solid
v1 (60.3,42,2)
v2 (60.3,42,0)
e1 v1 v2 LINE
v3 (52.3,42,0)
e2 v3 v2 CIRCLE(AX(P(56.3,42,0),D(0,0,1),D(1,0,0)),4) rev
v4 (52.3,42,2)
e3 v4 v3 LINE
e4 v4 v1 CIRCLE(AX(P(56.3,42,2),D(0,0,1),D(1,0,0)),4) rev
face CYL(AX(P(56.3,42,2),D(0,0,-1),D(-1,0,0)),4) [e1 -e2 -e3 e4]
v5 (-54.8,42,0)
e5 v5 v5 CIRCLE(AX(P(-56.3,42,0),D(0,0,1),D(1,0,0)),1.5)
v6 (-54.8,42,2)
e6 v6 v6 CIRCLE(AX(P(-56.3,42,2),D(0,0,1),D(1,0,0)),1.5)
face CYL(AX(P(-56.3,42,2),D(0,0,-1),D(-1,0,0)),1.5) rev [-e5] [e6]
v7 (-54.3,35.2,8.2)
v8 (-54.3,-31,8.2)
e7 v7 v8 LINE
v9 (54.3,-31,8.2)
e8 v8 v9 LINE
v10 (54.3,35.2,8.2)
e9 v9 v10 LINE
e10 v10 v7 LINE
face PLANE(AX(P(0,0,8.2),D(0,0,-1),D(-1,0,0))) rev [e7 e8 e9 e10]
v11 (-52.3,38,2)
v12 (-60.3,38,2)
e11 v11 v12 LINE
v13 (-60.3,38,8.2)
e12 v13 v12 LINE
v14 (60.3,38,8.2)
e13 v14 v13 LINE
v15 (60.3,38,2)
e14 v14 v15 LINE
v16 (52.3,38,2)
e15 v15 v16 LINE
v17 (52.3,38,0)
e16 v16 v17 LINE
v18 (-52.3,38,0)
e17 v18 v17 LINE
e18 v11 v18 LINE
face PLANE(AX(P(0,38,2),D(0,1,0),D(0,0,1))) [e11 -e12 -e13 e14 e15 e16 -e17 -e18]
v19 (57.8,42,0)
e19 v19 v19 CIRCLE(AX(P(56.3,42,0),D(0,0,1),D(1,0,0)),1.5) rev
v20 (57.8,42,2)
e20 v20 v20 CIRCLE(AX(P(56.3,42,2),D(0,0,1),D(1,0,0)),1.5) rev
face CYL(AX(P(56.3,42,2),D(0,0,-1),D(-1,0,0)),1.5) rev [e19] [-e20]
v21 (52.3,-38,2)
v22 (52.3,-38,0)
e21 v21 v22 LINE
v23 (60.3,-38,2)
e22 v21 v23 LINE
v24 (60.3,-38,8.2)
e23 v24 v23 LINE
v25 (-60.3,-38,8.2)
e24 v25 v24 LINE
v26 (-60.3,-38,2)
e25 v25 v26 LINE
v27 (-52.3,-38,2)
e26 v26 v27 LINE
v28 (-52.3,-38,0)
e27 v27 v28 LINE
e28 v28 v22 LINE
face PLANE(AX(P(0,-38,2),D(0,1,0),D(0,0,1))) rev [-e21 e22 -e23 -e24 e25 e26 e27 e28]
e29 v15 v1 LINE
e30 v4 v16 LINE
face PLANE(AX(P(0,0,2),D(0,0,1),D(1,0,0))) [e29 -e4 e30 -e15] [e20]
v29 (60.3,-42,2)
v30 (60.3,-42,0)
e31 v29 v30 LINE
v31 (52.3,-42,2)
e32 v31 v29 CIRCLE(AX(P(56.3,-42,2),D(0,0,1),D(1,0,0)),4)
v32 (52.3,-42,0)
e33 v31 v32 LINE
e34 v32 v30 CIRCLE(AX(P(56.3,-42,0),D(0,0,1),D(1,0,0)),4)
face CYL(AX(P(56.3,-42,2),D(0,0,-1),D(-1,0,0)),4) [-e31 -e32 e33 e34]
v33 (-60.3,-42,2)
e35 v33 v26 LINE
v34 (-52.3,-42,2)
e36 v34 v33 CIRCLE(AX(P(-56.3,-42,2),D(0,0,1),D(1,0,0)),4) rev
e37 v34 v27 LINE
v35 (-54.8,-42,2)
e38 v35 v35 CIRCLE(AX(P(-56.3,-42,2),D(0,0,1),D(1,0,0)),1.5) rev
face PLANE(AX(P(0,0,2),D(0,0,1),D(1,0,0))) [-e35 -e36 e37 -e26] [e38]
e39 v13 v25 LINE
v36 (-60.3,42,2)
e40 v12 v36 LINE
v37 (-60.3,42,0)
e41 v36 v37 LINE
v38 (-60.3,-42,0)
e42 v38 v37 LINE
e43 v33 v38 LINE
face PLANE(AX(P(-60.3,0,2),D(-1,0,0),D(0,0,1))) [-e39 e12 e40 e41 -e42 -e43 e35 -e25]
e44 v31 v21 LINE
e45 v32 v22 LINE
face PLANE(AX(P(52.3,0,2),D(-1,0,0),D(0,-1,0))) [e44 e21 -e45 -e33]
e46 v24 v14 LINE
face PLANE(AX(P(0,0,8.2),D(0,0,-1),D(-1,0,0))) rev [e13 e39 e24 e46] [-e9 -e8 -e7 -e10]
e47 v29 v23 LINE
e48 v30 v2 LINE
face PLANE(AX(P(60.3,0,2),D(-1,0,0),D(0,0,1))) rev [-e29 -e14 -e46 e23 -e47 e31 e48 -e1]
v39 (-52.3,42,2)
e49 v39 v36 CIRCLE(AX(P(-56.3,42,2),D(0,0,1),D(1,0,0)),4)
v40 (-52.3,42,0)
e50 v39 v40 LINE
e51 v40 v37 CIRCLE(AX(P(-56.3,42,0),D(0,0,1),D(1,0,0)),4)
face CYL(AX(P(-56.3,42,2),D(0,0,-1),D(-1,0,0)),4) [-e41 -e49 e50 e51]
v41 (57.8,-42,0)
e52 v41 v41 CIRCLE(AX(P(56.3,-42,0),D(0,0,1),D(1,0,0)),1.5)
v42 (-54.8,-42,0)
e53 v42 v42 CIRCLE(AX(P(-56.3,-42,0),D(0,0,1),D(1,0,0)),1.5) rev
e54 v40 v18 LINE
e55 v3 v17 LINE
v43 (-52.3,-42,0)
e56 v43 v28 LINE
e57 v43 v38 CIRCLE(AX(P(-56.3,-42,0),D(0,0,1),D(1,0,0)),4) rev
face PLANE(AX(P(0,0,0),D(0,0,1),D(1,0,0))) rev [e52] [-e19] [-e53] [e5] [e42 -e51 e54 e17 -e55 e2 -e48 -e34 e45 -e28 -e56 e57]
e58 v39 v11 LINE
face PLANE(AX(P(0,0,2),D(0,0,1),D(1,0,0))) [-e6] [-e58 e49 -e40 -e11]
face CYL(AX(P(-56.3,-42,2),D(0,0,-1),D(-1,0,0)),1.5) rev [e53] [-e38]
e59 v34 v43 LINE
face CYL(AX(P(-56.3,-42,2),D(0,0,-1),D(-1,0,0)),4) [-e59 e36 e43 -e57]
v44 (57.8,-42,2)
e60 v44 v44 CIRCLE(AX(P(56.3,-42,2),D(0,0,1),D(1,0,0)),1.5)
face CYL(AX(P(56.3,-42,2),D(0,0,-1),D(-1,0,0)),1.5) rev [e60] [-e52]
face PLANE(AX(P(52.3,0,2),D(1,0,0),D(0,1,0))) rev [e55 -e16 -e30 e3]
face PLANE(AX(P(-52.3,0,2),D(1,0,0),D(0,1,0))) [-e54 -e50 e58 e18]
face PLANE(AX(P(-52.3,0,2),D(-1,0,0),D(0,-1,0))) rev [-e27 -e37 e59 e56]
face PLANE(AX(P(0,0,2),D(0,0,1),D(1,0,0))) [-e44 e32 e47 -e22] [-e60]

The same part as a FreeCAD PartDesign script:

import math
import FreeCAD as App
import Part
import Sketcher

V = App.Vector
Q = App.Units.Quantity


def add_polygon(sketch, points):
    """Adds a closed chain of lines whose ends are joined by coincident constraints."""
    first, n = sketch.GeometryCount, len(points)
    for a, b in zip(points, points[1:] + points[:1]):
        sketch.addGeometry(Part.LineSegment(App.Vector(*a, 0), App.Vector(*b, 0)), False)
    for i in range(n):
        sketch.addConstraint(Sketcher.Constraint("Coincident", first + i, 2, first + (i + 1) % n, 1))

doc = App.newDocument("Part")
body = doc.addObject("PartDesign::Body", "Body")

# Sketch on XY plane
sketch1 = doc.addObject("Sketcher::SketchObject", "Sketch")
body.addObject(sketch1)
sketch1.AttachmentSupport = (doc.XY_Plane, [""])
sketch1.MapMode = "FlatFace"
sketch1.addGeometry(Part.ArcOfCircle(Part.Circle(V(-56.3, 42, 0), V(0, 0, 1), 4), math.radians(0), math.radians(180)), False)
sketch1.addGeometry(Part.LineSegment(V(-60.3, 42, 0), V(-60.3, -42, 0)), False)
sketch1.addGeometry(Part.ArcOfCircle(Part.Circle(V(-56.3, -42, 0), V(0, 0, 1), 4), math.radians(180), math.radians(360)), False)
sketch1.addGeometry(Part.LineSegment(V(-52.3, -42, 0), V(-52.3, -38, 0)), False)
sketch1.addGeometry(Part.LineSegment(V(-52.3, -38, 0), V(52.3, -38, 0)), False)
sketch1.addGeometry(Part.LineSegment(V(52.3, -38, 0), V(52.3, -42, 0)), False)
sketch1.addGeometry(Part.ArcOfCircle(Part.Circle(V(56.3, -42, 0), V(0, 0, 1), 4), math.radians(180), math.radians(360)), False)
sketch1.addGeometry(Part.LineSegment(V(60.3, -42, 0), V(60.3, 42, 0)), False)
sketch1.addGeometry(Part.ArcOfCircle(Part.Circle(V(56.3, 42, 0), V(0, 0, 1), 4), math.radians(0), math.radians(180)), False)
sketch1.addGeometry(Part.LineSegment(V(52.3, 42, 0), V(52.3, 38, 0)), False)
sketch1.addGeometry(Part.LineSegment(V(52.3, 38, 0), V(-52.3, 38, 0)), False)
sketch1.addGeometry(Part.LineSegment(V(-52.3, 38, 0), V(-52.3, 42, 0)), False)
sketch1.addGeometry(Part.Circle(V(-56.3, 42, 0), V(0, 0, 1), 1.5), False)
sketch1.addGeometry(Part.Circle(V(-56.3, -42, 0), V(0, 0, 1), 1.5), False)
sketch1.addGeometry(Part.Circle(V(56.3, -42, 0), V(0, 0, 1), 1.5), False)
sketch1.addGeometry(Part.Circle(V(56.3, 42, 0), V(0, 0, 1), 1.5), False)
sketch1.addConstraint(Sketcher.Constraint("Tangent", 0, 2, 1, 1))
sketch1.addConstraint(Sketcher.Constraint("Tangent", 1, 2, 2, 1))
sketch1.addConstraint(Sketcher.Constraint("Tangent", 2, 2, 3, 1))
sketch1.addConstraint(Sketcher.Constraint("Coincident", 3, 2, 4, 1))
sketch1.addConstraint(Sketcher.Constraint("Coincident", 4, 2, 5, 1))
sketch1.addConstraint(Sketcher.Constraint("Tangent", 5, 2, 6, 1))
sketch1.addConstraint(Sketcher.Constraint("Tangent", 6, 2, 7, 1))
sketch1.addConstraint(Sketcher.Constraint("Tangent", 7, 2, 8, 1))
sketch1.addConstraint(Sketcher.Constraint("Tangent", 8, 2, 9, 1))
sketch1.addConstraint(Sketcher.Constraint("Coincident", 9, 2, 10, 1))
sketch1.addConstraint(Sketcher.Constraint("Coincident", 10, 2, 11, 1))
sketch1.addConstraint(Sketcher.Constraint("Tangent", 11, 2, 0, 1))
sketch1.addConstraint(Sketcher.Constraint("Vertical", 1))
sketch1.addConstraint(Sketcher.Constraint("Vertical", 3))
sketch1.addConstraint(Sketcher.Constraint("Horizontal", 4))
sketch1.addConstraint(Sketcher.Constraint("Vertical", 5))
sketch1.addConstraint(Sketcher.Constraint("Vertical", 7))
sketch1.addConstraint(Sketcher.Constraint("Vertical", 9))
sketch1.addConstraint(Sketcher.Constraint("Horizontal", 10))
sketch1.addConstraint(Sketcher.Constraint("Vertical", 11))
sketch1.addConstraint(Sketcher.Constraint("Coincident", 12, 3, 0, 3))
sketch1.addConstraint(Sketcher.Constraint("Coincident", 13, 3, 2, 3))
sketch1.addConstraint(Sketcher.Constraint("Coincident", 14, 3, 6, 3))
sketch1.addConstraint(Sketcher.Constraint("Coincident", 15, 3, 8, 3))
sketch1.addConstraint(Sketcher.Constraint("Equal", 0, 2))
sketch1.addConstraint(Sketcher.Constraint("Equal", 2, 6))
sketch1.addConstraint(Sketcher.Constraint("Equal", 6, 8))
sketch1.addConstraint(Sketcher.Constraint("Equal", 12, 13))
sketch1.addConstraint(Sketcher.Constraint("Equal", 13, 14))
sketch1.addConstraint(Sketcher.Constraint("Equal", 14, 15))
sketch1.addConstraint(Sketcher.Constraint("Symmetric", 0, 3, 6, 3, -1, 1))
sketch1.addConstraint(Sketcher.Constraint("Horizontal", 2, 3, 6, 3))
sketch1.addConstraint(Sketcher.Constraint("Horizontal", 0, 3, 8, 3))
sketch1.addConstraint(Sketcher.Constraint("Equal", 5, 9))
sketch1.addConstraint(Sketcher.Constraint("Diameter", 12, Q("3 mm")))
sketch1.addConstraint(Sketcher.Constraint("Radius", 0, Q("4 mm")))
sketch1.addConstraint(Sketcher.Constraint("DistanceY", 1, 2, 1, 1, Q("84 mm")))
sketch1.addConstraint(Sketcher.Constraint("DistanceY", 3, 1, 3, 2, Q("4 mm")))
sketch1.addConstraint(Sketcher.Constraint("DistanceX", 4, 1, 4, 2, Q("104.6 mm")))
pad1 = doc.addObject("PartDesign::Pad", "Pad")
body.addObject(pad1)
pad1.Profile = sketch1
pad1.Length = 2

# Sketch on XY plane
sketch2 = doc.addObject("Sketcher::SketchObject", "Sketch001")
body.addObject(sketch2)
sketch2.AttachmentSupport = (doc.XY_Plane, [""])
sketch2.MapMode = "FlatFace"
sketch2.AttachmentOffset = App.Placement(V(0, 0, 2), App.Rotation())
add_polygon(sketch2, [(-60, 38), (-60, -38), (60, -38), (60, 38)])  # lines 0-3
sketch2.addConstraint(Sketcher.Constraint("Vertical", 0))
sketch2.addConstraint(Sketcher.Constraint("Horizontal", 1))
sketch2.addConstraint(Sketcher.Constraint("Vertical", 2))
sketch2.addConstraint(Sketcher.Constraint("Horizontal", 3))
sketch2.addConstraint(Sketcher.Constraint("Symmetric", 0, 2, 2, 2, -1, 1))
sketch2.addConstraint(Sketcher.Constraint("DistanceY", 0, 2, 0, 1, Q("76 mm")))
sketch2.addConstraint(Sketcher.Constraint("DistanceX", 1, 1, 1, 2, Q("120.6 mm")))
pad2 = doc.addObject("PartDesign::Pad", "Pad001")
body.addObject(pad2)
pad2.Profile = sketch2
pad2.Length = 6.2

doc.recompute()
